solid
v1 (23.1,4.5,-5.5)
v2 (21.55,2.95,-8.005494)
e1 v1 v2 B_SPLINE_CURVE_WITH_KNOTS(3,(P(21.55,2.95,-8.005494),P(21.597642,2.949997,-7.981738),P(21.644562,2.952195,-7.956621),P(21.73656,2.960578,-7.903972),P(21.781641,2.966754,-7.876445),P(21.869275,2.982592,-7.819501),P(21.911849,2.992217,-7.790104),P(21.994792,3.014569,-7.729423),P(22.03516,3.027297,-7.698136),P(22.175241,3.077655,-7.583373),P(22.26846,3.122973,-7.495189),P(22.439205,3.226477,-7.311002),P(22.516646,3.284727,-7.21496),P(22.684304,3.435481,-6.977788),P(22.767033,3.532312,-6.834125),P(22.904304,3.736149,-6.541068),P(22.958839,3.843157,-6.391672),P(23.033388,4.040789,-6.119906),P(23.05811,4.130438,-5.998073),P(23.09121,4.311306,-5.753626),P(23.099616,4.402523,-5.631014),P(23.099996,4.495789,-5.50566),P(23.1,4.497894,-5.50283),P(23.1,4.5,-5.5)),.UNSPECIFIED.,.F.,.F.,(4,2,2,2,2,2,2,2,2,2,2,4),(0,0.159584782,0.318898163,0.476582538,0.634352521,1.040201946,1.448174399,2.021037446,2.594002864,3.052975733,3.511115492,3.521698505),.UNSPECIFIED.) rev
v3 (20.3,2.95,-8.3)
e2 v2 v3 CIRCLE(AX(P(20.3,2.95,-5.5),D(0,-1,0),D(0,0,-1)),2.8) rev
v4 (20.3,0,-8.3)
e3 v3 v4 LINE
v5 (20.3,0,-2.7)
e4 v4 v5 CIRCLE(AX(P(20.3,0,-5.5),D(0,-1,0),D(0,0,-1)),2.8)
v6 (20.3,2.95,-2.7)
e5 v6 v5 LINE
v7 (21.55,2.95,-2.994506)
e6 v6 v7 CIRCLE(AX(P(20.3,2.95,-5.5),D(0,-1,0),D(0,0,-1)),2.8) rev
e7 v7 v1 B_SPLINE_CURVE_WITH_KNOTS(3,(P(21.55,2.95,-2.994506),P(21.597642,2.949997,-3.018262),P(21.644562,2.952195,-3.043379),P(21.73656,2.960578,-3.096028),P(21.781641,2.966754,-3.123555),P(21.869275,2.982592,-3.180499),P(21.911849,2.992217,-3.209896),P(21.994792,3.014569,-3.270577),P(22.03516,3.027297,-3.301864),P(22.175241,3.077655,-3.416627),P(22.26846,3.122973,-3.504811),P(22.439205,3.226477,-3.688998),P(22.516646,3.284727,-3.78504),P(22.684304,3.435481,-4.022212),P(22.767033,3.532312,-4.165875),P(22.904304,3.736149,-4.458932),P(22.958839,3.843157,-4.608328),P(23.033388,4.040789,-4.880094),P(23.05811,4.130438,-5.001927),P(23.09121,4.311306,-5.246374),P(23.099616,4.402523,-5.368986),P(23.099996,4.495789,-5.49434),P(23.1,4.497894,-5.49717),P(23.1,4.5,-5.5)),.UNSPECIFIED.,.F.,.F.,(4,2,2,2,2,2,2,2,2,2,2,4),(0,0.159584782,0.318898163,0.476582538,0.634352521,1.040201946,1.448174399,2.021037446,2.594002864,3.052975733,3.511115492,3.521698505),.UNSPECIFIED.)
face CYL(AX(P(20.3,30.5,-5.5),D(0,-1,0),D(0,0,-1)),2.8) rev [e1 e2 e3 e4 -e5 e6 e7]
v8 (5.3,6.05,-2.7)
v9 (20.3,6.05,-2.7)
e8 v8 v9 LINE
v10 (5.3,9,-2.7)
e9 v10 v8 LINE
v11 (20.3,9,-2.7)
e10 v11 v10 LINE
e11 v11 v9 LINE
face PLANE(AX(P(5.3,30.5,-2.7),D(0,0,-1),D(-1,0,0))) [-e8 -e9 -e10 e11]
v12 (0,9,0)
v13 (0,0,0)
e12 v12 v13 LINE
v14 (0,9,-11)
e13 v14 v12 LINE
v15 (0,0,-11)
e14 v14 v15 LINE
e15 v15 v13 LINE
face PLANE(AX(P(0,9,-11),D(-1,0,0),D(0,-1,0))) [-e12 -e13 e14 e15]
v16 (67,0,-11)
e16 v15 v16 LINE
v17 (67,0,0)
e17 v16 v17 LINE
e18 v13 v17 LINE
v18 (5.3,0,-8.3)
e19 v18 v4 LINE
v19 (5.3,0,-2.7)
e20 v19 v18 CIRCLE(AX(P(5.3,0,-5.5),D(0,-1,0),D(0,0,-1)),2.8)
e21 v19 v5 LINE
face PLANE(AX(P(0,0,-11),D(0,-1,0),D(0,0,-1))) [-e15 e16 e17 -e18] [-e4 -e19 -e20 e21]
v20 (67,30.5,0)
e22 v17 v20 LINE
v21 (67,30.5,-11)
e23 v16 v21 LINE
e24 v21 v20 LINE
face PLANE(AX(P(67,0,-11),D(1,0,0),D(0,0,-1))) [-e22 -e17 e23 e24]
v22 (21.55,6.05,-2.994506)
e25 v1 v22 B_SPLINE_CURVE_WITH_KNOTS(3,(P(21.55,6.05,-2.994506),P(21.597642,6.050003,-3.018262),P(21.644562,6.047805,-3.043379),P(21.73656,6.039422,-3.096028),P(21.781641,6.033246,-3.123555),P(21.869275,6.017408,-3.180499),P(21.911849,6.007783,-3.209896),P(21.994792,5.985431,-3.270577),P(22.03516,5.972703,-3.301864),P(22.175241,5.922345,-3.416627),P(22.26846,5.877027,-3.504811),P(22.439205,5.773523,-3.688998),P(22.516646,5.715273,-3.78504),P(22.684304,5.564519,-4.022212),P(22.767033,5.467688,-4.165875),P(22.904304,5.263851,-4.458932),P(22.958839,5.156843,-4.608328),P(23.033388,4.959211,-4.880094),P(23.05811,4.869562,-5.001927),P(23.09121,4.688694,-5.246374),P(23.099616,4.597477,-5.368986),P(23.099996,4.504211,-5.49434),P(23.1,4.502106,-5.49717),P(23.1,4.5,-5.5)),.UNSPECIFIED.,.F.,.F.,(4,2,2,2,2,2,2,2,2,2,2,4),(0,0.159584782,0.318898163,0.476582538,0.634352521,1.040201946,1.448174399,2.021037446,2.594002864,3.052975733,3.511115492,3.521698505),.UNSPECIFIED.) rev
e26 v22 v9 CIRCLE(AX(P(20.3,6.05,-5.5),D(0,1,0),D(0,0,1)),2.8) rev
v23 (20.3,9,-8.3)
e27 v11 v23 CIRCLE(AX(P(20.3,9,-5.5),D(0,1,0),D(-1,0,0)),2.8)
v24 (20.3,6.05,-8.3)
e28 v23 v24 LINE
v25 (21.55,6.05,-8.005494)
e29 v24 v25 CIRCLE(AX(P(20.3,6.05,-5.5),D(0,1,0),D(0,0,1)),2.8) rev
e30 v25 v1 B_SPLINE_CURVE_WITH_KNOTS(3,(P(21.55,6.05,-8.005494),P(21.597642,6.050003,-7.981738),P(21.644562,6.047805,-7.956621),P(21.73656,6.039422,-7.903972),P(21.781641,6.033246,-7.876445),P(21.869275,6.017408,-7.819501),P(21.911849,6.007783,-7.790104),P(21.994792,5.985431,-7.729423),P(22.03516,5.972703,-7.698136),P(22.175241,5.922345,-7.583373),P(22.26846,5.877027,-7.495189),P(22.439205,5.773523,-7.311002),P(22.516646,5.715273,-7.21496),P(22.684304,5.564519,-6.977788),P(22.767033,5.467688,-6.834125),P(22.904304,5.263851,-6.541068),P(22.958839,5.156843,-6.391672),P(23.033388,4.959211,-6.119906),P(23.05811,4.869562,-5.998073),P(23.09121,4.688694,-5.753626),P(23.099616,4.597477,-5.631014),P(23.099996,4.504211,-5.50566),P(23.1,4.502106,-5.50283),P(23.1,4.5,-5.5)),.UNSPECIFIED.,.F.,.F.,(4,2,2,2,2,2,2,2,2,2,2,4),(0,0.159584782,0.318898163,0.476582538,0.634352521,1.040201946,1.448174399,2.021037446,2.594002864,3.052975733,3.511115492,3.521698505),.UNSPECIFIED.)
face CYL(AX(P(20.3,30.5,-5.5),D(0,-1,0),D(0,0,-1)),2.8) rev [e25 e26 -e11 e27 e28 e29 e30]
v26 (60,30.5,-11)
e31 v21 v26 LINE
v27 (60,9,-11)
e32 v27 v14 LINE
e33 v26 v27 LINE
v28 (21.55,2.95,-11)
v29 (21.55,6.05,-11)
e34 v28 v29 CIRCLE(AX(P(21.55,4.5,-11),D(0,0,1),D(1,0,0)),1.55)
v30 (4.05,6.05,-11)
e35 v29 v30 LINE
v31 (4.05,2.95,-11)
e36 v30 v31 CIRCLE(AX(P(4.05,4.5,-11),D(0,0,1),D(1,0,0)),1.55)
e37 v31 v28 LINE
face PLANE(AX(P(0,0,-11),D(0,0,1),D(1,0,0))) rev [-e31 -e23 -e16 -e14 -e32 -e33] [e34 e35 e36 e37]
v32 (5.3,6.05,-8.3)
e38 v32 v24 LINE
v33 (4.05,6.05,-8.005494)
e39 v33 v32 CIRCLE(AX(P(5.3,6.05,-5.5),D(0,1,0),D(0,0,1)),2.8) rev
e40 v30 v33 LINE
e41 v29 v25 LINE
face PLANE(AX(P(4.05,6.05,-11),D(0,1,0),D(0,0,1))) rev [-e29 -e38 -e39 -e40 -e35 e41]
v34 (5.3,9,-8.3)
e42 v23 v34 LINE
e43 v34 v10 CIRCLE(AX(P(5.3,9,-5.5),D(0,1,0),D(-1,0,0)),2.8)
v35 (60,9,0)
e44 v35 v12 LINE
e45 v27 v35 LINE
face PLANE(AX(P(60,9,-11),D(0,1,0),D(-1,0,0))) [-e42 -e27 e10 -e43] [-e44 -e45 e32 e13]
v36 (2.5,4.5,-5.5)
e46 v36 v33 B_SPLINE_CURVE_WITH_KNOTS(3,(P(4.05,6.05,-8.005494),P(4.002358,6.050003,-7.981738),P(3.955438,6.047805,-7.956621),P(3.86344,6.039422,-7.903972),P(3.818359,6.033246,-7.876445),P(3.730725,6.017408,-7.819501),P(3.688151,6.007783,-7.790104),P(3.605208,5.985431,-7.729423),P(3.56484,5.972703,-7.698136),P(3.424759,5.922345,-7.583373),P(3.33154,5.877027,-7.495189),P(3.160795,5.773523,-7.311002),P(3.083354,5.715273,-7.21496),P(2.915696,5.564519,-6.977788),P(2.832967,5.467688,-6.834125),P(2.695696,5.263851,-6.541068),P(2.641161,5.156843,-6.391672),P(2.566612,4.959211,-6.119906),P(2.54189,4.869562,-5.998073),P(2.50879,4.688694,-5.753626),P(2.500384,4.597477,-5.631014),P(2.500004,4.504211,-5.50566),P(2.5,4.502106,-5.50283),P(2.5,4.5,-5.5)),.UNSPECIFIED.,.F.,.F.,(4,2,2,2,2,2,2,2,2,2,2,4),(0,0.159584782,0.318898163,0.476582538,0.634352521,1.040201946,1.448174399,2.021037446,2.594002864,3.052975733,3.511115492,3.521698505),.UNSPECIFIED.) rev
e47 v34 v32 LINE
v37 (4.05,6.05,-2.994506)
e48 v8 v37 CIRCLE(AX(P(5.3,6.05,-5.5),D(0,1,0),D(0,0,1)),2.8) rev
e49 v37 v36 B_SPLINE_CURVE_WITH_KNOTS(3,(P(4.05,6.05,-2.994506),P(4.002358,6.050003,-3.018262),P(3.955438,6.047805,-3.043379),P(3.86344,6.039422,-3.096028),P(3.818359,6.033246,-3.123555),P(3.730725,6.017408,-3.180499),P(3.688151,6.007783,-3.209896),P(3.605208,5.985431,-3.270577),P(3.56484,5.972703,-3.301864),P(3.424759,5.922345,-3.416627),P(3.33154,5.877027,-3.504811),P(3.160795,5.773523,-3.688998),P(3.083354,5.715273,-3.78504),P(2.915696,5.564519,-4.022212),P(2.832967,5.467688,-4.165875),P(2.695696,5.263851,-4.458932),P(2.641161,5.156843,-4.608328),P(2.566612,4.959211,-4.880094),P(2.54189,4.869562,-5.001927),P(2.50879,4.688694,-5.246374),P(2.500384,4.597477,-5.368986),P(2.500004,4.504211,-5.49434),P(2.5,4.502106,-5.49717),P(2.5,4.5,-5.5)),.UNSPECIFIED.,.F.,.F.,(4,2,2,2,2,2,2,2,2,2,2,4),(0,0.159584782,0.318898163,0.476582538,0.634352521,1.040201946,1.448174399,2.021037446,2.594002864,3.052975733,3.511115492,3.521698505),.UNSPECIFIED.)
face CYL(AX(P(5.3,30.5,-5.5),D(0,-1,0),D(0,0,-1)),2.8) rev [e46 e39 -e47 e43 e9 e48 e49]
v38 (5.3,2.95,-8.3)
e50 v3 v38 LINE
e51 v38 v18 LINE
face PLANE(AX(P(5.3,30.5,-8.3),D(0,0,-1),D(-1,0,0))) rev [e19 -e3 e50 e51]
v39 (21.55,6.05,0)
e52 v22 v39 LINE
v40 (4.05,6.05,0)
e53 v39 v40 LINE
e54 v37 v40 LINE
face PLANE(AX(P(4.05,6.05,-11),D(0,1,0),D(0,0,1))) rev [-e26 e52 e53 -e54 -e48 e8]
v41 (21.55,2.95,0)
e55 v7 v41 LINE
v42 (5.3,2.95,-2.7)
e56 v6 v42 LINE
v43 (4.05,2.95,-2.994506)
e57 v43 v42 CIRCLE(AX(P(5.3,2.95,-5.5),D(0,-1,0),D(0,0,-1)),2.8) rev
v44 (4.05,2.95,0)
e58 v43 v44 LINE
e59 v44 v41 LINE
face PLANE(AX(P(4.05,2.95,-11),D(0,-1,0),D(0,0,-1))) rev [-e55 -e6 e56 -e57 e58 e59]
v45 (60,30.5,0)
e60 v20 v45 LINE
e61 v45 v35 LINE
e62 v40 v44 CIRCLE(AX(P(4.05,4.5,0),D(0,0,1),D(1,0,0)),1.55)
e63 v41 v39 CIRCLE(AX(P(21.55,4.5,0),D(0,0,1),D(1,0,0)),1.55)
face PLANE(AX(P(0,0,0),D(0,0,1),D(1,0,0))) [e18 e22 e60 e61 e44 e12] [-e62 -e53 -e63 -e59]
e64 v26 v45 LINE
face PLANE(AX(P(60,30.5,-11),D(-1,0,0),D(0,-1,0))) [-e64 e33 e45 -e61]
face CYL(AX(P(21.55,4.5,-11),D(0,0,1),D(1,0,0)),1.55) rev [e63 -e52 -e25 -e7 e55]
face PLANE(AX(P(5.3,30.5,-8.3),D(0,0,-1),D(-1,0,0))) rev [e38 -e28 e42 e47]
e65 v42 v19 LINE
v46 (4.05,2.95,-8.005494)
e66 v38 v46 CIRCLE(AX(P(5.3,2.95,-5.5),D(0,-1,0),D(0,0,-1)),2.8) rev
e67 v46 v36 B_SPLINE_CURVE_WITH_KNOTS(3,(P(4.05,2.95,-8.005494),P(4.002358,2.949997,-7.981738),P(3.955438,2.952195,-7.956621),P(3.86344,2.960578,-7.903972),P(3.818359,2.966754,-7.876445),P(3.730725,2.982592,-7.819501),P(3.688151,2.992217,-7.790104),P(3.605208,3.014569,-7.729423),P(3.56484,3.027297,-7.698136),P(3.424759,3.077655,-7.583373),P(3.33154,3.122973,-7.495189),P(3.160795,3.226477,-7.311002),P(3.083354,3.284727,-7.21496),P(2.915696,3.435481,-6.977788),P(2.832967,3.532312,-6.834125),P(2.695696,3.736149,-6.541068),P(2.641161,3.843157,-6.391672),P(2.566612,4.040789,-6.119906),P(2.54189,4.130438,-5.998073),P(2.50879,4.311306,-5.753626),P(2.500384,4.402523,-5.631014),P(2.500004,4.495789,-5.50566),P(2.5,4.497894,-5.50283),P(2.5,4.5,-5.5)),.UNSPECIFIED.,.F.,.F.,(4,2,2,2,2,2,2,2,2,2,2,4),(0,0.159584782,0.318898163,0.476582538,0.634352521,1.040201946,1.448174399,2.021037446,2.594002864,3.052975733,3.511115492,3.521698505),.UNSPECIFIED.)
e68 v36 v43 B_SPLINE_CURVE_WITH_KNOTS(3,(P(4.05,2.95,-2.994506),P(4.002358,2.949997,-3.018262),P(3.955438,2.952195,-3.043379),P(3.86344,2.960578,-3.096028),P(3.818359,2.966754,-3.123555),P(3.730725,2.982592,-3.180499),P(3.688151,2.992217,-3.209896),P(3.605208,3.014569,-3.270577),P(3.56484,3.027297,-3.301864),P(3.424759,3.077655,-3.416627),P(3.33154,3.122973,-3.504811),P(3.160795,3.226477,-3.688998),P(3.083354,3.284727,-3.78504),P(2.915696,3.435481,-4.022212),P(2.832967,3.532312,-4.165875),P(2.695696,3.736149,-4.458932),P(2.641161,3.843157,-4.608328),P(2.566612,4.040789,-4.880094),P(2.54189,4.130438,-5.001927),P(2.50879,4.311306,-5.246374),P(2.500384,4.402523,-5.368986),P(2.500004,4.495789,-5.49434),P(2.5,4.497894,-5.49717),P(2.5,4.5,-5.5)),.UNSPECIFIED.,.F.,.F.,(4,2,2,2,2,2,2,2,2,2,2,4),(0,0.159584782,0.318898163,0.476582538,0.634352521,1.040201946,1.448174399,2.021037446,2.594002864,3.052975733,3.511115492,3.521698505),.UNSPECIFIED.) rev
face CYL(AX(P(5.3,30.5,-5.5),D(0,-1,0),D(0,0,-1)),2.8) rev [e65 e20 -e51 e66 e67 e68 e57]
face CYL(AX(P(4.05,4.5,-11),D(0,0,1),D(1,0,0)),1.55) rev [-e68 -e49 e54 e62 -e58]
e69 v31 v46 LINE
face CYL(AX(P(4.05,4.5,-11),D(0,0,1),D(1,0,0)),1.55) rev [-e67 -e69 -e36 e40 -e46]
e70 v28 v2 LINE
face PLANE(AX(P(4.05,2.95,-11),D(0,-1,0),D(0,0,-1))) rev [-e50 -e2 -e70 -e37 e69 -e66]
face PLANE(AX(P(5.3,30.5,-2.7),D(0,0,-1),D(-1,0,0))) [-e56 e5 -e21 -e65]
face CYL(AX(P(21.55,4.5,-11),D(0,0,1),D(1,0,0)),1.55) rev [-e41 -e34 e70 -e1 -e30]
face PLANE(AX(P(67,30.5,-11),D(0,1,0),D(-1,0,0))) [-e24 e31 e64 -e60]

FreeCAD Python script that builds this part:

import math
import FreeCAD as App
import Part
import Sketcher

doc = App.newDocument("Part")
body = doc.addObject("PartDesign::Body", "Body")

# Sketch on XY plane
sketch1 = body.newObject("Sketcher::SketchObject", "Sketch")
sketch1.AttachmentSupport = (doc.getObject("XY_Plane"), [""])
sketch1.MapMode = "FlatFace"
sketch1.addGeometry(Part.LineSegment(App.Vector(0, 0, 0), App.Vector(67, 0, 0)), False)
sketch1.addGeometry(Part.LineSegment(App.Vector(67, 0, 0), App.Vector(67, 30, 0)), False)
sketch1.addGeometry(Part.LineSegment(App.Vector(67, 30, 0), App.Vector(60, 30, 0)), False)
sketch1.addGeometry(Part.LineSegment(App.Vector(60, 30, 0), App.Vector(60, 9, 0)), False)
sketch1.addGeometry(Part.LineSegment(App.Vector(60, 9, 0), App.Vector(0, 9, 0)), False)
sketch1.addGeometry(Part.LineSegment(App.Vector(0, 9, 0), App.Vector(0, 0, 0)), False)
sketch1.addConstraint(Sketcher.Constraint("Coincident", 0, 2, 1, 1))
sketch1.addConstraint(Sketcher.Constraint("Coincident", 1, 2, 2, 1))
sketch1.addConstraint(Sketcher.Constraint("Coincident", 2, 2, 3, 1))
sketch1.addConstraint(Sketcher.Constraint("Coincident", 3, 2, 4, 1))
sketch1.addConstraint(Sketcher.Constraint("Coincident", 4, 2, 5, 1))
sketch1.addConstraint(Sketcher.Constraint("Coincident", 5, 2, 0, 1))
sketch1.addConstraint(Sketcher.Constraint("Horizontal", 0))
sketch1.addConstraint(Sketcher.Constraint("Vertical", 1))
sketch1.addConstraint(Sketcher.Constraint("Horizontal", 2))
sketch1.addConstraint(Sketcher.Constraint("Vertical", 3))
sketch1.addConstraint(Sketcher.Constraint("Horizontal", 4))
sketch1.addConstraint(Sketcher.Constraint("Vertical", 5))
sketch1.addConstraint(Sketcher.Constraint("Coincident", 5, 2, -1, 1))
sketch1.addConstraint(Sketcher.Constraint("DistanceX", 0, 1, 0, 2, 67.0))
sketch1.addConstraint(Sketcher.Constraint("DistanceX", 2, 2, 2, 1, 7.0))
sketch1.addConstraint(Sketcher.Constraint("DistanceY", 5, 2, 5, 1, 9.0))
sketch1.addConstraint(Sketcher.Constraint("DistanceY", 1, 1, 1, 2, 30.5))
pad1 = body.newObject("PartDesign::Pad", "Pad")
pad1.Profile = sketch1
pad1.Length = 11
pad1.Reversed = True

# Sketch on XZ plane
sketch2 = body.newObject("Sketcher::SketchObject", "Sketch001")
sketch2.AttachmentSupport = (doc.getObject("XZ_Plane"), [""])
sketch2.MapMode = "FlatFace"
sketch2.addGeometry(Part.LineSegment(App.Vector(20.3, -2.7, 0), App.Vector(5.3, -2.7, 0)), False)
sketch2.addGeometry(Part.ArcOfCircle(Part.Circle(App.Vector(5.3, -5.5, 0), App.Vector(0, 0, 1), 2.8), math.radians(90), math.radians(270)), False)
sketch2.addGeometry(Part.LineSegment(App.Vector(5.3, -8.3, 0), App.Vector(20.3, -8.3, 0)), False)
sketch2.addGeometry(Part.ArcOfCircle(Part.Circle(App.Vector(20.3, -5.5, 0), App.Vector(0, 0, 1), 2.8), math.radians(-90), math.radians(90)), False)
sketch2.addConstraint(Sketcher.Constraint("Tangent", 0, 2, 1, 1))
sketch2.addConstraint(Sketcher.Constraint("Tangent", 1, 2, 2, 1))
sketch2.addConstraint(Sketcher.Constraint("Tangent", 2, 2, 3, 1))
sketch2.addConstraint(Sketcher.Constraint("Tangent", 3, 2, 0, 1))
sketch2.addConstraint(Sketcher.Constraint("Horizontal", 0))
sketch2.addConstraint(Sketcher.Constraint("Horizontal", 2))
sketch2.addConstraint(Sketcher.Constraint("Radius", 1, 2.8))
sketch2.addConstraint(Sketcher.Constraint("DistanceX", 0, 2, 0, 1, 15.0))
sketch2.addConstraint(Sketcher.Constraint("DistanceX", -1, 1, 1, 3, 5.3))
sketch2.addConstraint(Sketcher.Constraint("DistanceY", 1, 3, -1, 1, 5.5))
pocket1 = body.newObject("PartDesign::Pocket", "Pocket")
pocket1.Profile = sketch2
pocket1.Type = "ThroughAll"

# Sketch on XY plane
sketch3 = body.newObject("Sketcher::SketchObject", "Sketch002")
sketch3.AttachmentSupport = (doc.getObject("XY_Plane"), [""])
sketch3.MapMode = "FlatFace"
sketch3.addGeometry(Part.LineSegment(App.Vector(21.6, 6, 0), App.Vector(4, 6, 0)), False)
sketch3.addGeometry(Part.ArcOfCircle(Part.Circle(App.Vector(4, 4.5, 0), App.Vector(0, 0, 1), 1.6), math.radians(90), math.radians(270)), False)
sketch3.addGeometry(Part.LineSegment(App.Vector(4, 3, 0), App.Vector(21.6, 3, 0)), False)
sketch3.addGeometry(Part.ArcOfCircle(Part.Circle(App.Vector(21.6, 4.5, 0), App.Vector(0, 0, 1), 1.6), math.radians(-90), math.radians(90)), False)
sketch3.addConstraint(Sketcher.Constraint("Tangent", 0, 2, 1, 1))
sketch3.addConstraint(Sketcher.Constraint("Tangent", 1, 2, 2, 1))
sketch3.addConstraint(Sketcher.Constraint("Tangent", 2, 2, 3, 1))
sketch3.addConstraint(Sketcher.Constraint("Tangent", 3, 2, 0, 1))
sketch3.addConstraint(Sketcher.Constraint("Horizontal", 0))
sketch3.addConstraint(Sketcher.Constraint("Horizontal", 2))
sketch3.addConstraint(Sketcher.Constraint("Radius", 1, 1.55))
sketch3.addConstraint(Sketcher.Constraint("DistanceX", 0, 2, 0, 1, 17.5))
sketch3.addConstraint(Sketcher.Constraint("DistanceY", -1, 1, 1, 3, 4.5))
sketch3.addConstraint(Sketcher.Constraint("DistanceX", -1, 1, 1, 3, 4.05))
pocket2 = body.newObject("PartDesign::Pocket", "Pocket001")
pocket2.Profile = sketch3
pocket2.Type = "ThroughAll"

doc.recompute()
